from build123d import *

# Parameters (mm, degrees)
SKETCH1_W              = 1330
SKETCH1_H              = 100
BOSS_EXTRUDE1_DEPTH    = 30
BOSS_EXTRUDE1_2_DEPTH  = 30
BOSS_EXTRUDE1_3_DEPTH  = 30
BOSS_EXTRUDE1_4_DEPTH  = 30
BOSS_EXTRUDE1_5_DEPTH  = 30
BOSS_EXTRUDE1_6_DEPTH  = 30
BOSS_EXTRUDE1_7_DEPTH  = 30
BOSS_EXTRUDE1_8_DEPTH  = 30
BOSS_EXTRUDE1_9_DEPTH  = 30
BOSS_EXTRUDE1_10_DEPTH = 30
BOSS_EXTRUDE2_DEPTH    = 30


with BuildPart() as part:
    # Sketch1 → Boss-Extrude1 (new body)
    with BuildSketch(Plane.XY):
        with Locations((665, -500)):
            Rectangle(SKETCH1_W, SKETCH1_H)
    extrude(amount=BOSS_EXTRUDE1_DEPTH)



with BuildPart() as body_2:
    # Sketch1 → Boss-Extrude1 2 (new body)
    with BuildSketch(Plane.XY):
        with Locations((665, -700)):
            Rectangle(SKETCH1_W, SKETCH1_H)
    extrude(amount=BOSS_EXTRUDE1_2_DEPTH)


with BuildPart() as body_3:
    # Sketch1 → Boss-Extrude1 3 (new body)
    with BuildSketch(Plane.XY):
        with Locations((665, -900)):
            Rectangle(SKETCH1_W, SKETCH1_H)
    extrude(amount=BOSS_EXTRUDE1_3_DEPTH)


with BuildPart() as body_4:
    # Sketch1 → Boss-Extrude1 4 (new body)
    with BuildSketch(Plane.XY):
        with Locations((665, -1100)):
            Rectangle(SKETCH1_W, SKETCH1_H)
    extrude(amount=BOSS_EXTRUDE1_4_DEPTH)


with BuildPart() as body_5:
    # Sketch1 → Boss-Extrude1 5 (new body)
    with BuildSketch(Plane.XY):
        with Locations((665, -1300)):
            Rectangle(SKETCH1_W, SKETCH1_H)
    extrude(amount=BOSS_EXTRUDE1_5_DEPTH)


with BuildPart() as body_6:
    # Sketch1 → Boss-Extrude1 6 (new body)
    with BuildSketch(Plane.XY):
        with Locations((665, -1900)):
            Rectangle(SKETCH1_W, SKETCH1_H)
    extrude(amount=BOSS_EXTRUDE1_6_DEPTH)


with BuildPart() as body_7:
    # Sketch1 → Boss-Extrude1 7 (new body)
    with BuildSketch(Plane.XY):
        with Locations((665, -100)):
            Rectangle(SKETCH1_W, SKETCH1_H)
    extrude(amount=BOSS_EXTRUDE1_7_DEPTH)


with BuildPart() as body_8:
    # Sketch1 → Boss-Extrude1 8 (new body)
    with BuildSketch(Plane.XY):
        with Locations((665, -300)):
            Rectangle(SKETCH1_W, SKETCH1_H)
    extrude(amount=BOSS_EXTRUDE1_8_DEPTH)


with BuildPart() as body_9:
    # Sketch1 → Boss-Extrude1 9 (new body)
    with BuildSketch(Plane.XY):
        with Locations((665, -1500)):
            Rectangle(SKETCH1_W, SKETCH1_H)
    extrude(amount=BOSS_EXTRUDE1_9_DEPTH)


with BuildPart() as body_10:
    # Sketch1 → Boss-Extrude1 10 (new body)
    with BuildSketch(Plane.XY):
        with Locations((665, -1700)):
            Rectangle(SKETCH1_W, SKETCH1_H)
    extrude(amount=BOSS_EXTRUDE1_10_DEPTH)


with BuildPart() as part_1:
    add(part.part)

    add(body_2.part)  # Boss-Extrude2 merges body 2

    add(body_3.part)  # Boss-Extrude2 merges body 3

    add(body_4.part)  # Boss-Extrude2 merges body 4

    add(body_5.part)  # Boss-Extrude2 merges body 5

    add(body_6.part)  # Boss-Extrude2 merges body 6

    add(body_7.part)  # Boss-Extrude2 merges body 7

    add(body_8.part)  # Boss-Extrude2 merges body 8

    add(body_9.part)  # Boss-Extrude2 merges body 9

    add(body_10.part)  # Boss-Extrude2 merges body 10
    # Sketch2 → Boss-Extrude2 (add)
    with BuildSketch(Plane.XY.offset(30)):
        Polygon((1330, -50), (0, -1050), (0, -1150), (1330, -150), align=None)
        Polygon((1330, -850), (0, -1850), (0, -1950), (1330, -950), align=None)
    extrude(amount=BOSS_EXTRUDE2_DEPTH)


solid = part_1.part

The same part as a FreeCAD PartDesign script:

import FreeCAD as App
import Part
import Sketcher
from FreeCAD import Vector
Q = App.Units.Quantity


def add_polygon(sketch, points):
    """Adds a closed chain of lines whose ends are joined by coincident constraints."""
    first, n = sketch.GeometryCount, len(points)
    for a, b in zip(points, points[1:] + points[:1]):
        sketch.addGeometry(Part.LineSegment(App.Vector(*a, 0), App.Vector(*b, 0)), False)
    for i in range(n):
        sketch.addConstraint(Sketcher.Constraint("Coincident", first + i, 2, first + (i + 1) % n, 1))

doc = App.newDocument("Part")
body = doc.addObject("PartDesign::Body", "Body")

sketch1 = body.newObject("Sketcher::SketchObject", "Sketch")
sketch1.AttachmentSupport = (doc.getObject("XY_Plane"), [""])
sketch1.MapMode = "FlatFace"
add_polygon(sketch1, [(0, -450), (0, -550), (1330, -550), (1330, -450)])
sketch1.addConstraint([
    Sketcher.Constraint("Vertical", 0),
    Sketcher.Constraint("Horizontal", 1),
    Sketcher.Constraint("Vertical", 2),
    Sketcher.Constraint("Horizontal", 3),
    Sketcher.Constraint("PointOnObject", 0, 2, -2),
    Sketcher.Constraint("DistanceX", 1, 1, 1, 2, Q("1330 mm")),
    Sketcher.Constraint("DistanceY", 0, 2, 0, 1, Q("100 mm")),
    Sketcher.Constraint("DistanceY", 0, 2, -1, 1, Q("550 mm")),
])
pad1 = body.newObject("PartDesign::Pad", "Pad")
pad1.Profile = sketch1
pad1.Length = 30
body2 = doc.addObject("PartDesign::Body", "Body001")

sketch2 = body2.newObject("Sketcher::SketchObject", "Sketch001")
sketch2.AttachmentSupport = (doc.getObject("XY_Plane001"), [""])
sketch2.MapMode = "FlatFace"
add_polygon(sketch2, [(0, -650), (0, -750), (1330, -750), (1330, -650)])
sketch2.addConstraint([
    Sketcher.Constraint("Vertical", 0),
    Sketcher.Constraint("Horizontal", 1),
    Sketcher.Constraint("Vertical", 2),
    Sketcher.Constraint("Horizontal", 3),
    Sketcher.Constraint("PointOnObject", 0, 2, -2),
    Sketcher.Constraint("DistanceX", 1, 1, 1, 2, Q("1330 mm")),
    Sketcher.Constraint("DistanceY", 0, 2, 0, 1, Q("100 mm")),
    Sketcher.Constraint("DistanceY", 0, 2, -1, 1, Q("750 mm")),
])
pad2 = body2.newObject("PartDesign::Pad", "Pad001")
pad2.Profile = sketch2
pad2.Length = 30
body3 = doc.addObject("PartDesign::Body", "Body002")

sketch3 = body3.newObject("Sketcher::SketchObject", "Sketch002")
sketch3.AttachmentSupport = (doc.getObject("XY_Plane002"), [""])
sketch3.MapMode = "FlatFace"
add_polygon(sketch3, [(0, -850), (0, -950), (1330, -950), (1330, -850)])
sketch3.addConstraint([
    Sketcher.Constraint("Vertical", 0),
    Sketcher.Constraint("Horizontal", 1),
    Sketcher.Constraint("Vertical", 2),
    Sketcher.Constraint("Horizontal", 3),
    Sketcher.Constraint("PointOnObject", 0, 2, -2),
    Sketcher.Constraint("DistanceX", 1, 1, 1, 2, Q("1330 mm")),
    Sketcher.Constraint("DistanceY", 0, 2, 0, 1, Q("100 mm")),
    Sketcher.Constraint("DistanceY", 0, 2, -1, 1, Q("950 mm")),
])
pad3 = body3.newObject("PartDesign::Pad", "Pad002")
pad3.Profile = sketch3
pad3.Length = 30
body4 = doc.addObject("PartDesign::Body", "Body003")

sketch4 = body4.newObject("Sketcher::SketchObject", "Sketch003")
sketch4.AttachmentSupport = (doc.getObject("XY_Plane003"), [""])
sketch4.MapMode = "FlatFace"
add_polygon(sketch4, [(0, -1050), (0, -1150), (1330, -1150), (1330, -1050)])
sketch4.addConstraint([
    Sketcher.Constraint("Vertical", 0),
    Sketcher.Constraint("Horizontal", 1),
    Sketcher.Constraint("Vertical", 2),
    Sketcher.Constraint("Horizontal", 3),
    Sketcher.Constraint("PointOnObject", 0, 2, -2),
    Sketcher.Constraint("DistanceX", 1, 1, 1, 2, Q("1330 mm")),
    Sketcher.Constraint("DistanceY", 0, 2, 0, 1, Q("100 mm")),
    Sketcher.Constraint("DistanceY", 0, 2, -1, 1, Q("1150 mm")),
])
pad4 = body4.newObject("PartDesign::Pad", "Pad003")
pad4.Profile = sketch4
pad4.Length = 30
body5 = doc.addObject("PartDesign::Body", "Body004")

sketch5 = body5.newObject("Sketcher::SketchObject", "Sketch004")
sketch5.AttachmentSupport = (doc.getObject("XY_Plane004"), [""])
sketch5.MapMode = "FlatFace"
add_polygon(sketch5, [(0, -1250), (0, -1350), (1330, -1350), (1330, -1250)])
sketch5.addConstraint([
    Sketcher.Constraint("Vertical", 0),
    Sketcher.Constraint("Horizontal", 1),
    Sketcher.Constraint("Vertical", 2),
    Sketcher.Constraint("Horizontal", 3),
    Sketcher.Constraint("PointOnObject", 0, 2, -2),
    Sketcher.Constraint("DistanceX", 1, 1, 1, 2, Q("1330 mm")),
    Sketcher.Constraint("DistanceY", 0, 2, 0, 1, Q("100 mm")),
    Sketcher.Constraint("DistanceY", 0, 2, -1, 1, Q("1350 mm")),
])
pad5 = body5.newObject("PartDesign::Pad", "Pad004")
pad5.Profile = sketch5
pad5.Length = 30
body6 = doc.addObject("PartDesign::Body", "Body005")

sketch6 = body6.newObject("Sketcher::SketchObject", "Sketch005")
sketch6.AttachmentSupport = (doc.getObject("XY_Plane005"), [""])
sketch6.MapMode = "FlatFace"
add_polygon(sketch6, [(0, -1850), (0, -1950), (1330, -1950), (1330, -1850)])
sketch6.addConstraint([
    Sketcher.Constraint("Vertical", 0),
    Sketcher.Constraint("Horizontal", 1),
    Sketcher.Constraint("Vertical", 2),
    Sketcher.Constraint("Horizontal", 3),
    Sketcher.Constraint("PointOnObject", 0, 2, -2),
    Sketcher.Constraint("DistanceX", 1, 1, 1, 2, Q("1330 mm")),
    Sketcher.Constraint("DistanceY", 0, 2, 0, 1, Q("100 mm")),
    Sketcher.Constraint("DistanceY", 0, 2, -1, 1, Q("1950 mm")),
])
pad6 = body6.newObject("PartDesign::Pad", "Pad005")
pad6.Profile = sketch6
pad6.Length = 30
body7 = doc.addObject("PartDesign::Body", "Body006")

sketch7 = body7.newObject("Sketcher::SketchObject", "Sketch006")
sketch7.AttachmentSupport = (doc.getObject("XY_Plane006"), [""])
sketch7.MapMode = "FlatFace"
add_polygon(sketch7, [(0, -50), (0, -150), (1330, -150), (1330, -50)])
sketch7.addConstraint([
    Sketcher.Constraint("Vertical", 0),
    Sketcher.Constraint("Horizontal", 1),
    Sketcher.Constraint("Vertical", 2),
    Sketcher.Constraint("Horizontal", 3),
    Sketcher.Constraint("PointOnObject", 0, 2, -2),
    Sketcher.Constraint("DistanceX", 1, 1, 1, 2, Q("1330 mm")),
    Sketcher.Constraint("DistanceY", 0, 2, 0, 1, Q("100 mm")),
    Sketcher.Constraint("DistanceY", 0, 2, -1, 1, Q("150 mm")),
])
pad7 = body7.newObject("PartDesign::Pad", "Pad006")
pad7.Profile = sketch7
pad7.Length = 30
body8 = doc.addObject("PartDesign::Body", "Body007")

sketch8 = body8.newObject("Sketcher::SketchObject", "Sketch007")
sketch8.AttachmentSupport = (doc.getObject("XY_Plane007"), [""])
sketch8.MapMode = "FlatFace"
add_polygon(sketch8, [(0, -250), (0, -350), (1330, -350), (1330, -250)])
sketch8.addConstraint([
    Sketcher.Constraint("Vertical", 0),
    Sketcher.Constraint("Horizontal", 1),
    Sketcher.Constraint("Vertical", 2),
    Sketcher.Constraint("Horizontal", 3),
    Sketcher.Constraint("PointOnObject", 0, 2, -2),
    Sketcher.Constraint("DistanceX", 1, 1, 1, 2, Q("1330 mm")),
    Sketcher.Constraint("DistanceY", 0, 2, 0, 1, Q("100 mm")),
    Sketcher.Constraint("DistanceY", 0, 2, -1, 1, Q("350 mm")),
])
pad8 = body8.newObject("PartDesign::Pad", "Pad007")
pad8.Profile = sketch8
pad8.Length = 30
body9 = doc.addObject("PartDesign::Body", "Body008")

sketch9 = body9.newObject("Sketcher::SketchObject", "Sketch008")
sketch9.AttachmentSupport = (doc.getObject("XY_Plane008"), [""])
sketch9.MapMode = "FlatFace"
add_polygon(sketch9, [(0, -1450), (0, -1550), (1330, -1550), (1330, -1450)])
sketch9.addConstraint([
    Sketcher.Constraint("Vertical", 0),
    Sketcher.Constraint("Horizontal", 1),
    Sketcher.Constraint("Vertical", 2),
    Sketcher.Constraint("Horizontal", 3),
    Sketcher.Constraint("PointOnObject", 0, 2, -2),
    Sketcher.Constraint("DistanceX", 1, 1, 1, 2, Q("1330 mm")),
    Sketcher.Constraint("DistanceY", 0, 2, 0, 1, Q("100 mm")),
    Sketcher.Constraint("DistanceY", 0, 2, -1, 1, Q("1550 mm")),
])
pad9 = body9.newObject("PartDesign::Pad", "Pad008")
pad9.Profile = sketch9
pad9.Length = 30
body10 = doc.addObject("PartDesign::Body", "Body009")

sketch10 = body10.newObject("Sketcher::SketchObject", "Sketch009")
sketch10.AttachmentSupport = (doc.getObject("XY_Plane009"), [""])
sketch10.MapMode = "FlatFace"
add_polygon(sketch10, [(0, -1650), (0, -1750), (1330, -1750), (1330, -1650)])
sketch10.addConstraint([
    Sketcher.Constraint("Vertical", 0),
    Sketcher.Constraint("Horizontal", 1),
    Sketcher.Constraint("Vertical", 2),
    Sketcher.Constraint("Horizontal", 3),
    Sketcher.Constraint("PointOnObject", 0, 2, -2),
    Sketcher.Constraint("DistanceX", 1, 1, 1, 2, Q("1330 mm")),
    Sketcher.Constraint("DistanceY", 0, 2, 0, 1, Q("100 mm")),
    Sketcher.Constraint("DistanceY", 0, 2, -1, 1, Q("1750 mm")),
])
pad10 = body10.newObject("PartDesign::Pad", "Pad009")
pad10.Profile = sketch10
pad10.Length = 30
body.AllowCompound = True
doc.recompute()

boolean = body.newObject("PartDesign::Boolean", "Boolean")
boolean.Type = "Fuse"
boolean.addObjects([body2])
doc.recompute()

boolean2 = body.newObject("PartDesign::Boolean", "Boolean001")
boolean2.Type = "Fuse"
boolean2.addObjects([body3])
doc.recompute()

boolean3 = body.newObject("PartDesign::Boolean", "Boolean002")
boolean3.Type = "Fuse"
boolean3.addObjects([body4])
doc.recompute()

boolean4 = body.newObject("PartDesign::Boolean", "Boolean003")
boolean4.Type = "Fuse"
boolean4.addObjects([body5])
doc.recompute()

boolean5 = body.newObject("PartDesign::Boolean", "Boolean004")
boolean5.Type = "Fuse"
boolean5.addObjects([body6])
doc.recompute()

boolean6 = body.newObject("PartDesign::Boolean", "Boolean005")
boolean6.Type = "Fuse"
boolean6.addObjects([body7])
doc.recompute()

boolean7 = body.newObject("PartDesign::Boolean", "Boolean006")
boolean7.Type = "Fuse"
boolean7.addObjects([body8])
doc.recompute()

boolean8 = body.newObject("PartDesign::Boolean", "Boolean007")
boolean8.Type = "Fuse"
boolean8.addObjects([body9])
doc.recompute()

boolean9 = body.newObject("PartDesign::Boolean", "Boolean008")
boolean9.Type = "Fuse"
boolean9.addObjects([body10])

sketch11 = body.newObject("Sketcher::SketchObject", "Sketch010")
sketch11.AttachmentSupport = (doc.getObject("XY_Plane"), [""])
sketch11.MapMode = "FlatFace"
sketch11.AttachmentOffset = App.Placement(Vector(0, 0, 30), App.Rotation())
add_polygon(sketch11, [(1330, -50), (0, -1050), (0, -1150), (1330, -150)])
add_polygon(sketch11, [(1330, -850), (0, -1850), (0, -1950), (1330, -950)])
sketch11.addConstraint([
    Sketcher.Constraint("Vertical", 1),
    Sketcher.Constraint("Vertical", 3),
    Sketcher.Constraint("Vertical", 5),
    Sketcher.Constraint("Vertical", 7),
    Sketcher.Constraint("PointOnObject", 0, 2, -2),
    Sketcher.Constraint("PointOnObject", 4, 2, -2),
    Sketcher.Constraint("Parallel", 0, 2),
    Sketcher.Constraint("Parallel", 2, 4),
    Sketcher.Constraint("Parallel", 4, 6),
    Sketcher.Constraint("Vertical", 3, 2, 6, 2),
    Sketcher.Constraint("Equal", 3, 5),
    Sketcher.Constraint("DistanceY", 1, 2, 1, 1, Q("100 mm")),
    Sketcher.Constraint("DistanceY", 0, 2, -1, 1, Q("1050 mm")),
    Sketcher.Constraint("DistanceX", -1, 1, 2, 2, Q("1330 mm")),
    Sketcher.Constraint("DistanceY", 2, 2, -1, 1, Q("150 mm")),
    Sketcher.Constraint("DistanceY", 4, 2, -1, 1, Q("1850 mm")),
])
pad11 = body.newObject("PartDesign::Pad", "Pad010")
pad11.Profile = sketch11
pad11.Length = 30

doc.recompute()
